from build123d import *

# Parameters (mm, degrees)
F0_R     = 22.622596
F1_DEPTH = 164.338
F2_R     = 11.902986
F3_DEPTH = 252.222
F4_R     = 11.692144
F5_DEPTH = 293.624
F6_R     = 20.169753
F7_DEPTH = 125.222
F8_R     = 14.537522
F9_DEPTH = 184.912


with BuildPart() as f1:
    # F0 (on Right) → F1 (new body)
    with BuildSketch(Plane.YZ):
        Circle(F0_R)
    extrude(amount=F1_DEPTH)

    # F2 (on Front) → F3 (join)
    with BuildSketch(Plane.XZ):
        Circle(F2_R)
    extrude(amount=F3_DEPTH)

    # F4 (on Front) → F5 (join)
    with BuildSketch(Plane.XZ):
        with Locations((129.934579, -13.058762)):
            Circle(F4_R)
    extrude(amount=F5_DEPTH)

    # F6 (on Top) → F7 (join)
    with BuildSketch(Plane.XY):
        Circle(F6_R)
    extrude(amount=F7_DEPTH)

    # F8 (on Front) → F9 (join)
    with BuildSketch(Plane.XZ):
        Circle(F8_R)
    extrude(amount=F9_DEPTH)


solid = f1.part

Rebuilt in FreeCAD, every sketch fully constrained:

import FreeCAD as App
import Part
import Sketcher
from FreeCAD import Vector
Q = App.Units.Quantity

doc = App.newDocument("Part")
params = doc.addObject("Spreadsheet::Sheet", "Params")
for row, (alias, value) in enumerate([
    ("pad1_length", "6.47 in"),
    ("pad2_length", "9.93 in"),
    ("pad3_length", "11.56 in"),
    ("pad4_length", "4.93 in"),
    ("pad5_length", "7.28 in"),
], start=1):
    params.set(f"A{row}", alias)
    params.set(f"B{row}", "=" + value)
    params.setAlias(f"B{row}", alias)

body = doc.addObject("PartDesign::Body", "Body")

# Sketch on YZ plane
sketch1 = doc.addObject("Sketcher::SketchObject", "Sketch")
body.addObject(sketch1)
sketch1.AttachmentSupport = (doc.YZ_Plane, [""])
sketch1.MapMode = "FlatFace"
sketch1.addGeometry(Part.Circle(Vector(0, 0, 0), Vector(0, 0, 1), 23), False)
sketch1.addConstraint([
    Sketcher.Constraint("Coincident", 0, 3, -1, 1),
    Sketcher.Constraint("Diameter", 0, Q("45.245192 mm")),
])
pad1 = doc.addObject("PartDesign::Pad", "Pad")
body.addObject(pad1)
pad1.Profile = sketch1
pad1.setExpression("Length", "Params.pad1_length")

# Sketch on XZ plane
sketch2 = doc.addObject("Sketcher::SketchObject", "Sketch001")
body.addObject(sketch2)
sketch2.AttachmentSupport = (doc.XZ_Plane, [""])
sketch2.MapMode = "FlatFace"
sketch2.addGeometry(Part.Circle(Vector(0, 0, 0), Vector(0, 0, 1), 12), False)
sketch2.addConstraint([
    Sketcher.Constraint("Coincident", 0, 3, -1, 1),
    Sketcher.Constraint("Diameter", 0, Q("23.805972 mm")),
])
pad2 = doc.addObject("PartDesign::Pad", "Pad001")
body.addObject(pad2)
pad2.Profile = sketch2
pad2.setExpression("Length", "Params.pad2_length")

# Sketch on XZ plane
sketch3 = doc.addObject("Sketcher::SketchObject", "Sketch002")
body.addObject(sketch3)
sketch3.AttachmentSupport = (doc.XZ_Plane, [""])
sketch3.MapMode = "FlatFace"
sketch3.addGeometry(Part.Circle(Vector(130, -13, 0), Vector(0, 0, 1), 12), False)
sketch3.addConstraint([
    Sketcher.Constraint("Diameter", 0, Q("23.384288 mm")),
    Sketcher.Constraint("DistanceX", -1, 1, 0, 3, Q("129.934579 mm")),
    Sketcher.Constraint("DistanceY", 0, 3, -1, 1, Q("13.058762 mm")),
])
pad3 = doc.addObject("PartDesign::Pad", "Pad002")
body.addObject(pad3)
pad3.Profile = sketch3
pad3.setExpression("Length", "Params.pad3_length")

# Sketch on XY plane
sketch4 = doc.addObject("Sketcher::SketchObject", "Sketch003")
body.addObject(sketch4)
sketch4.AttachmentSupport = (doc.XY_Plane, [""])
sketch4.MapMode = "FlatFace"
sketch4.addGeometry(Part.Circle(Vector(0, 0, 0), Vector(0, 0, 1), 20), False)
sketch4.addConstraint([
    Sketcher.Constraint("Coincident", 0, 3, -1, 1),
    Sketcher.Constraint("Diameter", 0, Q("40.339506 mm")),
])
pad4 = doc.addObject("PartDesign::Pad", "Pad003")
body.addObject(pad4)
pad4.Profile = sketch4
pad4.setExpression("Length", "Params.pad4_length")

# Sketch on XZ plane
sketch5 = doc.addObject("Sketcher::SketchObject", "Sketch004")
body.addObject(sketch5)
sketch5.AttachmentSupport = (doc.XZ_Plane, [""])
sketch5.MapMode = "FlatFace"
sketch5.addGeometry(Part.Circle(Vector(0, 0, 0), Vector(0, 0, 1), 15), False)
sketch5.addConstraint([
    Sketcher.Constraint("Coincident", 0, 3, -1, 1),
    Sketcher.Constraint("Diameter", 0, Q("29.075044 mm")),
])
pad5 = doc.addObject("PartDesign::Pad", "Pad004")
body.addObject(pad5)
pad5.Profile = sketch5
pad5.setExpression("Length", "Params.pad5_length")

doc.recompute()
